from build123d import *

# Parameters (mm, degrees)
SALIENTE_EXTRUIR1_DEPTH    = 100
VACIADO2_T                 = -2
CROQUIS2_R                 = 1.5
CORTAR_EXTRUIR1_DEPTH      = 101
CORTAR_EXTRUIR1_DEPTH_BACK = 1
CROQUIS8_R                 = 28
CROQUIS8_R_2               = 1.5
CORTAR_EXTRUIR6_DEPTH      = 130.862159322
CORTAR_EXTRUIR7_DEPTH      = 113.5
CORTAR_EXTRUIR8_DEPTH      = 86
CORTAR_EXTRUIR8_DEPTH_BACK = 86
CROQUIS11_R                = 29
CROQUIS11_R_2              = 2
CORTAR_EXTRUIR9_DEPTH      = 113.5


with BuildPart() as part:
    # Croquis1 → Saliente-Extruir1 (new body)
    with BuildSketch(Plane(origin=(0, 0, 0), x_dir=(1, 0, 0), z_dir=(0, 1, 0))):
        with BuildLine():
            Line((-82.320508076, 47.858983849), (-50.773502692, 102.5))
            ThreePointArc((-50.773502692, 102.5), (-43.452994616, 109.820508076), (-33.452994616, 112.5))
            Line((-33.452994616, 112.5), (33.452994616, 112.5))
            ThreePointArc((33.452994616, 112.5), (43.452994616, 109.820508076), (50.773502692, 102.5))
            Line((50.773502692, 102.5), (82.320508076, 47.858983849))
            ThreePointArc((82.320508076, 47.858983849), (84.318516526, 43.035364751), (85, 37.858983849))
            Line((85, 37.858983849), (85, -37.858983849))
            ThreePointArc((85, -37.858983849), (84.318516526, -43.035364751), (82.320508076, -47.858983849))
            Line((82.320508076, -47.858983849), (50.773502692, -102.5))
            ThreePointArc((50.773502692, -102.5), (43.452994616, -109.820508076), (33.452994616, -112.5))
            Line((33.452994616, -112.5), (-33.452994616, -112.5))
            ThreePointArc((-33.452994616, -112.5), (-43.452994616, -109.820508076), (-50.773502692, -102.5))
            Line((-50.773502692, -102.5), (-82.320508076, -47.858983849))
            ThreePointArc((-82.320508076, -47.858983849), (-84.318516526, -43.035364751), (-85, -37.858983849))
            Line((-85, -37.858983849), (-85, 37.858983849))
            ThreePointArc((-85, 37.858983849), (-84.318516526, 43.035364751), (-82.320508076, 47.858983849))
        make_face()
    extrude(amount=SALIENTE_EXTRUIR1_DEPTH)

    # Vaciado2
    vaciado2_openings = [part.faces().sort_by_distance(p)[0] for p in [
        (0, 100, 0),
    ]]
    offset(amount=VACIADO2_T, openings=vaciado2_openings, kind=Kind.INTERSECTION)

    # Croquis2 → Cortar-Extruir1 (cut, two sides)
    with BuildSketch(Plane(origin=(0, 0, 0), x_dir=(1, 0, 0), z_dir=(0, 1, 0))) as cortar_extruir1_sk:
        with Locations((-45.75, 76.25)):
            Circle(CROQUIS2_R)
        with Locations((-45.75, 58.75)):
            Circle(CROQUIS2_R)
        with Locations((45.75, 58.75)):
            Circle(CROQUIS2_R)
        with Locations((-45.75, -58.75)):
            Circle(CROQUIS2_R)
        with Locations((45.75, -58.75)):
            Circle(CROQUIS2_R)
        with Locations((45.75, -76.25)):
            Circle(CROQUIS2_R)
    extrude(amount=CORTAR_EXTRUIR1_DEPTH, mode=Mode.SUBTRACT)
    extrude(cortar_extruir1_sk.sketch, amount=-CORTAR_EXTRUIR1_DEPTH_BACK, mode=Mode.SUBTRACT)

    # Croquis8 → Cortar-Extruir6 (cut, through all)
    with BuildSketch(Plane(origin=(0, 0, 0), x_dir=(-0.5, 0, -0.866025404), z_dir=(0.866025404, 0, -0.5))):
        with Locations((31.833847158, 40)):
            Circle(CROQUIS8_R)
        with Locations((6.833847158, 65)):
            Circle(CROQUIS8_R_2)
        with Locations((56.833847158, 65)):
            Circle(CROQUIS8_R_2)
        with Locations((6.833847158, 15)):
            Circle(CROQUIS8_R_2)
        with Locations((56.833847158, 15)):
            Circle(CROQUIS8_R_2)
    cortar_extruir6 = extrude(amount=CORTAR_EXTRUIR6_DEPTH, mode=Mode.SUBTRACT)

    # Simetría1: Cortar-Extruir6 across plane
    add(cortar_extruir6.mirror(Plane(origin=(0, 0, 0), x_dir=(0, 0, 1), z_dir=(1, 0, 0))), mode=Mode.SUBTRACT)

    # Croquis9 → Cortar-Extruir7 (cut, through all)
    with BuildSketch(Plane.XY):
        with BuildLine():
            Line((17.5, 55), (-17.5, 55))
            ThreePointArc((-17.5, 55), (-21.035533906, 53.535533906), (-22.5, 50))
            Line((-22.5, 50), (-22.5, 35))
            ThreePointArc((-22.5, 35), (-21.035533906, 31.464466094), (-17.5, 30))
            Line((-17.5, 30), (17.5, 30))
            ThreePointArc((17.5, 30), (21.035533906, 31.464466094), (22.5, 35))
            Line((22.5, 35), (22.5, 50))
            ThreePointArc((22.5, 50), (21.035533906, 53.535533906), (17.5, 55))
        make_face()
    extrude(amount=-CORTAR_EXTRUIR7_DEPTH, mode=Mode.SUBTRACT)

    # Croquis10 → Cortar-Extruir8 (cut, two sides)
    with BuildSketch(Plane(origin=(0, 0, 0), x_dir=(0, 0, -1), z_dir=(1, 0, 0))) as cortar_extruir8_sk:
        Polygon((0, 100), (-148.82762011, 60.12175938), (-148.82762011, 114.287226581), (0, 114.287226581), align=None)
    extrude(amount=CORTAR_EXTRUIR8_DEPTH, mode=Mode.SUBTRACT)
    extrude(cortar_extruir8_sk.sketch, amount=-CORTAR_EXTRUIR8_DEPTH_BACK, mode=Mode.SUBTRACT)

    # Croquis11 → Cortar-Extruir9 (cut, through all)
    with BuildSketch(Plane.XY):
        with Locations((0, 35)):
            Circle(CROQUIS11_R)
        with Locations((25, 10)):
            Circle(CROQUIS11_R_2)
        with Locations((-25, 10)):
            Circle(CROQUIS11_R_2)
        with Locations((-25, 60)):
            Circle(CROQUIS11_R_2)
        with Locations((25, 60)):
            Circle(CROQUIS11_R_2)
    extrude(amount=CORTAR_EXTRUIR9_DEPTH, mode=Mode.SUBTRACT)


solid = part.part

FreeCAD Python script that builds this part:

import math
import FreeCAD as App
import Part
import Sketcher
Q = App.Units.Quantity


def faces_at(feature, points):
    """Names of the faces that lie closest to the given points."""
    faces = feature.Shape.Faces
    near = lambda p: min(range(len(faces)), key=lambda i: faces[i].distToShape(Part.Vertex(*p))[0])
    return sorted({f"Face{near(p) + 1}" for p in points})

doc = App.newDocument("Part")
body = doc.addObject("PartDesign::Body", "Body")

sketch1 = doc.addObject("Sketcher::SketchObject", "Sketch")
body.addObject(sketch1)
sketch1.AttachmentSupport = (doc.XZ_Plane, [""])
sketch1.MapMode = "FlatFace"
sketch1.addGeometry(Part.LineSegment(App.Vector(-50.773503, -102.5, 0), App.Vector(-82.320508, -47.858984, 0)), False)
sketch1.addGeometry(Part.ArcOfCircle(Part.Circle(App.Vector(-65, -37.858984, 0), App.Vector(0, 0, 1), 20), math.radians(180), math.radians(210)), False)
sketch1.addGeometry(Part.LineSegment(App.Vector(-85, -37.858984, 0), App.Vector(-85, 37.858984, 0)), False)
sketch1.addGeometry(Part.ArcOfCircle(Part.Circle(App.Vector(-65, 37.858984, 0), App.Vector(0, 0, 1), 20), math.radians(150), math.radians(180)), False)
sketch1.addGeometry(Part.LineSegment(App.Vector(-82.320508, 47.858984, 0), App.Vector(-50.773503, 102.5, 0)), False)
sketch1.addGeometry(Part.ArcOfCircle(Part.Circle(App.Vector(-33.452995, 92.5, 0), App.Vector(0, 0, 1), 20), math.radians(90), math.radians(150)), False)
sketch1.addGeometry(Part.LineSegment(App.Vector(-33.452995, 112.5, 0), App.Vector(33.452995, 112.5, 0)), False)
sketch1.addGeometry(Part.ArcOfCircle(Part.Circle(App.Vector(33.452995, 92.5, 0), App.Vector(0, 0, 1), 20), math.radians(30), math.radians(90)), False)
sketch1.addGeometry(Part.LineSegment(App.Vector(50.773503, 102.5, 0), App.Vector(82.320508, 47.858984, 0)), False)
sketch1.addGeometry(Part.ArcOfCircle(Part.Circle(App.Vector(65, 37.858984, 0), App.Vector(0, 0, 1), 20), math.radians(0), math.radians(30)), False)
sketch1.addGeometry(Part.LineSegment(App.Vector(85, 37.858984, 0), App.Vector(85, -37.858984, 0)), False)
sketch1.addGeometry(Part.ArcOfCircle(Part.Circle(App.Vector(65, -37.858984, 0), App.Vector(0, 0, 1), 20), math.radians(-30), math.radians(0)), False)
sketch1.addGeometry(Part.LineSegment(App.Vector(82.320508, -47.858984, 0), App.Vector(50.773503, -102.5, 0)), False)
sketch1.addGeometry(Part.ArcOfCircle(Part.Circle(App.Vector(33.452995, -92.5, 0), App.Vector(0, 0, 1), 20), math.radians(-90), math.radians(-30)), False)
sketch1.addGeometry(Part.LineSegment(App.Vector(33.452995, -112.5, 0), App.Vector(-33.452995, -112.5, 0)), False)
sketch1.addGeometry(Part.ArcOfCircle(Part.Circle(App.Vector(-33.452995, -92.5, 0), App.Vector(0, 0, 1), 20), math.radians(-150), math.radians(-90)), False)
sketch1.addConstraint(Sketcher.Constraint("Tangent", 0, 2, 1, 2))
sketch1.addConstraint(Sketcher.Constraint("Tangent", 1, 1, 2, 1))
sketch1.addConstraint(Sketcher.Constraint("Tangent", 2, 2, 3, 2))
sketch1.addConstraint(Sketcher.Constraint("Tangent", 3, 1, 4, 1))
sketch1.addConstraint(Sketcher.Constraint("Tangent", 4, 2, 5, 2))
sketch1.addConstraint(Sketcher.Constraint("Tangent", 5, 1, 6, 1))
sketch1.addConstraint(Sketcher.Constraint("Tangent", 6, 2, 7, 2))
sketch1.addConstraint(Sketcher.Constraint("Tangent", 7, 1, 8, 1))
sketch1.addConstraint(Sketcher.Constraint("Tangent", 8, 2, 9, 2))
sketch1.addConstraint(Sketcher.Constraint("Tangent", 9, 1, 10, 1))
sketch1.addConstraint(Sketcher.Constraint("Tangent", 10, 2, 11, 2))
sketch1.addConstraint(Sketcher.Constraint("Tangent", 11, 1, 12, 1))
sketch1.addConstraint(Sketcher.Constraint("Tangent", 12, 2, 13, 2))
sketch1.addConstraint(Sketcher.Constraint("Tangent", 13, 1, 14, 1))
sketch1.addConstraint(Sketcher.Constraint("Tangent", 14, 2, 15, 2))
sketch1.addConstraint(Sketcher.Constraint("Tangent", 15, 1, 0, 1))
sketch1.addConstraint(Sketcher.Constraint("Vertical", 2))
sketch1.addConstraint(Sketcher.Constraint("Horizontal", 6))
sketch1.addConstraint(Sketcher.Constraint("Vertical", 10))
sketch1.addConstraint(Sketcher.Constraint("Horizontal", 14))
sketch1.addConstraint(Sketcher.Constraint("Equal", 1, 3))
sketch1.addConstraint(Sketcher.Constraint("Equal", 3, 5))
sketch1.addConstraint(Sketcher.Constraint("Equal", 5, 7))
sketch1.addConstraint(Sketcher.Constraint("Equal", 7, 9))
sketch1.addConstraint(Sketcher.Constraint("Equal", 9, 11))
sketch1.addConstraint(Sketcher.Constraint("Equal", 11, 13))
sketch1.addConstraint(Sketcher.Constraint("Equal", 13, 15))
sketch1.addConstraint(Sketcher.Constraint("Symmetric", 1, 3, 9, 3, -1, 1))
sketch1.addConstraint(Sketcher.Constraint("Symmetric", 5, 3, 13, 3, -1, 1))
sketch1.addConstraint(Sketcher.Constraint("Symmetric", 4, 2, 7, 1, -2))
sketch1.addConstraint(Sketcher.Constraint("Symmetric", 0, 2, 11, 1, -2))
sketch1.addConstraint(Sketcher.Constraint("Radius", 1, 20.0))
sketch1.addConstraint(Sketcher.Constraint("Angle", 0, Q("120 deg")))
sketch1.addConstraint(Sketcher.Constraint("DistanceX", 1, 3, -1, 1, 65.0))
sketch1.addConstraint(Sketcher.Constraint("DistanceY", 13, 3, 7, 3, 185.0))
sketch1.addConstraint(Sketcher.Constraint("DistanceX", 6, 1, 6, 2, 66.905989))
pad1 = doc.addObject("PartDesign::Pad", "Pad")
body.addObject(pad1)
pad1.Profile = sketch1
pad1.Length = 100
pad1.Reversed = True
doc.recompute()

thickness = doc.addObject("PartDesign::Thickness", "Thickness")
body.addObject(thickness)
thickness.Base = (pad1, faces_at(pad1, [(0, 100, 0)]))
thickness.Value = 2
thickness.Reversed = True
thickness.Join = "Intersection"

sketch2 = doc.addObject("Sketcher::SketchObject", "Sketch001")
body.addObject(sketch2)
sketch2.AttachmentSupport = (doc.XZ_Plane, [""])
sketch2.MapMode = "FlatFace"
sketch2.addGeometry(Part.Circle(App.Vector(-45.75, -76.25, 0), App.Vector(0, 0, 1), 1.5), False)
sketch2.addGeometry(Part.Circle(App.Vector(-45.75, -58.75, 0), App.Vector(0, 0, 1), 1.5), False)
sketch2.addGeometry(Part.Circle(App.Vector(45.75, -58.75, 0), App.Vector(0, 0, 1), 1.5), False)
sketch2.addGeometry(Part.Circle(App.Vector(-45.75, 58.75, 0), App.Vector(0, 0, 1), 1.5), False)
sketch2.addGeometry(Part.Circle(App.Vector(45.75, 58.75, 0), App.Vector(0, 0, 1), 1.5), False)
sketch2.addGeometry(Part.Circle(App.Vector(45.75, 76.25, 0), App.Vector(0, 0, 1), 1.5), False)
sketch2.addConstraint(Sketcher.Constraint("Equal", 0, 1))
sketch2.addConstraint(Sketcher.Constraint("Equal", 1, 2))
sketch2.addConstraint(Sketcher.Constraint("Equal", 2, 3))
sketch2.addConstraint(Sketcher.Constraint("Equal", 3, 4))
sketch2.addConstraint(Sketcher.Constraint("Equal", 4, 5))
sketch2.addConstraint(Sketcher.Constraint("Symmetric", 2, 3, 3, 3, -1, 1))
sketch2.addConstraint(Sketcher.Constraint("Symmetric", 1, 3, 4, 3, -1, 1))
sketch2.addConstraint(Sketcher.Constraint("Symmetric", 0, 3, 5, 3, -1, 1))
sketch2.addConstraint(Sketcher.Constraint("Symmetric", 1, 3, 2, 3, -2))
sketch2.addConstraint(Sketcher.Constraint("Vertical", 0, 3, 1, 3))
sketch2.addConstraint(Sketcher.Constraint("Diameter", 0, 3.0))
sketch2.addConstraint(Sketcher.Constraint("DistanceY", 0, 3, 3, 3, 135.0))
sketch2.addConstraint(Sketcher.Constraint("DistanceY", 0, 3, 1, 3, 17.5))
sketch2.addConstraint(Sketcher.Constraint("DistanceX", 1, 3, 2, 3, 91.5))
pocket1 = doc.addObject("PartDesign::Pocket", "Pocket")
body.addObject(pocket1)
pocket1.Profile = sketch2
pocket1.Type = "ThroughAll"
pocket1.Midplane = True

sketch3 = doc.addObject("Sketcher::SketchObject", "Sketch002")
body.addObject(sketch3)
sketch3.Placement = App.Placement(App.Vector(0, 0, 0), App.Rotation(App.Vector(-0.5, 0, -0.866025404), App.Vector(0, 1, 0), App.Vector(0.866025404, 0, -0.5), "ZXY"))
sketch3.addGeometry(Part.Circle(App.Vector(31.833847, 40, 0), App.Vector(0, 0, 1), 28), False)
sketch3.addGeometry(Part.Circle(App.Vector(6.833847, 65, 0), App.Vector(0, 0, 1), 1.5), False)
sketch3.addGeometry(Part.Circle(App.Vector(56.833847, 65, 0), App.Vector(0, 0, 1), 1.5), False)
sketch3.addGeometry(Part.Circle(App.Vector(6.833847, 15, 0), App.Vector(0, 0, 1), 1.5), False)
sketch3.addGeometry(Part.Circle(App.Vector(56.833847, 15, 0), App.Vector(0, 0, 1), 1.5), False)
sketch3.addConstraint(Sketcher.Constraint("Equal", 1, 2))
sketch3.addConstraint(Sketcher.Constraint("Equal", 2, 3))
sketch3.addConstraint(Sketcher.Constraint("Equal", 3, 4))
sketch3.addConstraint(Sketcher.Constraint("Horizontal", 1, 3, 2, 3))
sketch3.addConstraint(Sketcher.Constraint("Horizontal", 3, 3, 4, 3))
sketch3.addConstraint(Sketcher.Constraint("Vertical", 1, 3, 3, 3))
sketch3.addConstraint(Sketcher.Constraint("Vertical", 2, 3, 4, 3))
sketch3.addConstraint(Sketcher.Constraint("Diameter", 0, 56.0))
sketch3.addConstraint(Sketcher.Constraint("Diameter", 1, 3.0))
sketch3.addConstraint(Sketcher.Constraint("DistanceY", -1, 1, 0, 3, 40.0))
sketch3.addConstraint(Sketcher.Constraint("DistanceY", -1, 1, 1, 3, 65.0))
sketch3.addConstraint(Sketcher.Constraint("DistanceY", -1, 1, 3, 3, 15.0))
sketch3.addConstraint(Sketcher.Constraint("DistanceX", 1, 3, 0, 3, 25.0))
sketch3.addConstraint(Sketcher.Constraint("DistanceX", 0, 3, 2, 3, 25.0))
sketch3.addConstraint(Sketcher.Constraint("DistanceX", -1, 1, 0, 3, 31.833847))
pocket2 = doc.addObject("PartDesign::Pocket", "Pocket001")
body.addObject(pocket2)
pocket2.Profile = sketch3
pocket2.Type = "ThroughAll"
pocket2.Reversed = True
doc.recompute()

mirrored = doc.addObject("PartDesign::Mirrored", "Mirrored")
body.addObject(mirrored)
mirrored.Originals = [pocket2]
mirrored.MirrorPlane = (doc.YZ_Plane, [""])
body.Tip = mirrored

sketch4 = doc.addObject("Sketcher::SketchObject", "Sketch003")
body.addObject(sketch4)
sketch4.AttachmentSupport = (doc.XY_Plane, [""])
sketch4.MapMode = "FlatFace"
sketch4.addGeometry(Part.LineSegment(App.Vector(17.5, 55, 0), App.Vector(-17.5, 55, 0)), False)
sketch4.addGeometry(Part.ArcOfCircle(Part.Circle(App.Vector(-17.5, 50, 0), App.Vector(0, 0, 1), 5), math.radians(90), math.radians(180)), False)
sketch4.addGeometry(Part.LineSegment(App.Vector(-22.5, 50, 0), App.Vector(-22.5, 35, 0)), False)
sketch4.addGeometry(Part.ArcOfCircle(Part.Circle(App.Vector(-17.5, 35, 0), App.Vector(0, 0, 1), 5), math.radians(180), math.radians(270)), False)
sketch4.addGeometry(Part.LineSegment(App.Vector(-17.5, 30, 0), App.Vector(17.5, 30, 0)), False)
sketch4.addGeometry(Part.ArcOfCircle(Part.Circle(App.Vector(17.5, 35, 0), App.Vector(0, 0, 1), 5), math.radians(-90), math.radians(0)), False)
sketch4.addGeometry(Part.LineSegment(App.Vector(22.5, 35, 0), App.Vector(22.5, 50, 0)), False)
sketch4.addGeometry(Part.ArcOfCircle(Part.Circle(App.Vector(17.5, 50, 0), App.Vector(0, 0, 1), 5), math.radians(0), math.radians(90)), False)
sketch4.addConstraint(Sketcher.Constraint("Tangent", 0, 2, 1, 1))
sketch4.addConstraint(Sketcher.Constraint("Tangent", 1, 2, 2, 1))
sketch4.addConstraint(Sketcher.Constraint("Tangent", 2, 2, 3, 1))
sketch4.addConstraint(Sketcher.Constraint("Tangent", 3, 2, 4, 1))
sketch4.addConstraint(Sketcher.Constraint("Tangent", 4, 2, 5, 1))
sketch4.addConstraint(Sketcher.Constraint("Tangent", 5, 2, 6, 1))
sketch4.addConstraint(Sketcher.Constraint("Tangent", 6, 2, 7, 1))
sketch4.addConstraint(Sketcher.Constraint("Tangent", 7, 2, 0, 1))
sketch4.addConstraint(Sketcher.Constraint("Horizontal", 0))
sketch4.addConstraint(Sketcher.Constraint("Vertical", 2))
sketch4.addConstraint(Sketcher.Constraint("Horizontal", 4))
sketch4.addConstraint(Sketcher.Constraint("Vertical", 6))
sketch4.addConstraint(Sketcher.Constraint("Equal", 1, 3))
sketch4.addConstraint(Sketcher.Constraint("Equal", 3, 5))
sketch4.addConstraint(Sketcher.Constraint("Equal", 5, 7))
sketch4.addConstraint(Sketcher.Constraint("Radius", 1, 5.0))
sketch4.addConstraint(Sketcher.Constraint("DistanceX", 0, 2, 0, 1, 35.0))
sketch4.addConstraint(Sketcher.Constraint("DistanceY", 2, 2, 2, 1, 15.0))
sketch4.addConstraint(Sketcher.Constraint("DistanceY", -1, 1, 1, 3, 50.0))
sketch4.addConstraint(Sketcher.Constraint("DistanceX", 1, 3, -1, 1, 17.5))
pocket3 = doc.addObject("PartDesign::Pocket", "Pocket002")
body.addObject(pocket3)
pocket3.Profile = sketch4
pocket3.Type = "ThroughAll"

sketch5 = doc.addObject("Sketcher::SketchObject", "Sketch004")
body.addObject(sketch5)
sketch5.AttachmentSupport = (doc.YZ_Plane, [""])
sketch5.MapMode = "FlatFace"
sketch5.addGeometry(Part.LineSegment(App.Vector(60.121759, 148.82762, 0), App.Vector(100, 0, 0)), False)
sketch5.addGeometry(Part.LineSegment(App.Vector(100, 0, 0), App.Vector(114.287227, 0, 0)), False)
sketch5.addGeometry(Part.LineSegment(App.Vector(114.287227, 0, 0), App.Vector(114.287227, 148.82762, 0)), False)
sketch5.addGeometry(Part.LineSegment(App.Vector(114.287227, 148.82762, 0), App.Vector(60.121759, 148.82762, 0)), False)
sketch5.addConstraint(Sketcher.Constraint("Coincident", 0, 2, 1, 1))
sketch5.addConstraint(Sketcher.Constraint("Coincident", 1, 2, 2, 1))
sketch5.addConstraint(Sketcher.Constraint("Coincident", 2, 2, 3, 1))
sketch5.addConstraint(Sketcher.Constraint("Coincident", 3, 2, 0, 1))
sketch5.addConstraint(Sketcher.Constraint("Horizontal", 1))
sketch5.addConstraint(Sketcher.Constraint("Vertical", 2))
sketch5.addConstraint(Sketcher.Constraint("Horizontal", 3))
sketch5.addConstraint(Sketcher.Constraint("PointOnObject", 0, 2, -1))
sketch5.addConstraint(Sketcher.Constraint("Angle", 0, Q("-75 deg")))
sketch5.addConstraint(Sketcher.Constraint("DistanceX", -1, 1, 0, 2, 100.0))
sketch5.addConstraint(Sketcher.Constraint("DistanceY", 2, 1, 2, 2, 148.82762))
sketch5.addConstraint(Sketcher.Constraint("DistanceX", 1, 1, 1, 2, 14.287227))
pocket4 = doc.addObject("PartDesign::Pocket", "Pocket003")
body.addObject(pocket4)
pocket4.Profile = sketch5
pocket4.Type = "ThroughAll"
pocket4.Midplane = True

sketch6 = doc.addObject("Sketcher::SketchObject", "Sketch005")
body.addObject(sketch6)
sketch6.AttachmentSupport = (doc.XY_Plane, [""])
sketch6.MapMode = "FlatFace"
sketch6.addGeometry(Part.Circle(App.Vector(0, 35, 0), App.Vector(0, 0, 1), 29), False)
sketch6.addGeometry(Part.Circle(App.Vector(25, 10, 0), App.Vector(0, 0, 1), 2), False)
sketch6.addGeometry(Part.Circle(App.Vector(-25, 10, 0), App.Vector(0, 0, 1), 2), False)
sketch6.addGeometry(Part.Circle(App.Vector(-25, 60, 0), App.Vector(0, 0, 1), 2), False)
sketch6.addGeometry(Part.Circle(App.Vector(25, 60, 0), App.Vector(0, 0, 1), 2), False)
sketch6.addConstraint(Sketcher.Constraint("Equal", 1, 2))
sketch6.addConstraint(Sketcher.Constraint("Equal", 2, 3))
sketch6.addConstraint(Sketcher.Constraint("Equal", 3, 4))
sketch6.addConstraint(Sketcher.Constraint("Symmetric", 1, 3, 2, 3, -2))
sketch6.addConstraint(Sketcher.Constraint("Symmetric", 3, 3, 4, 3, -2))
sketch6.addConstraint(Sketcher.Constraint("PointOnObject", 0, 3, -2))
sketch6.addConstraint(Sketcher.Constraint("Vertical", 2, 3, 3, 3))
sketch6.addConstraint(Sketcher.Constraint("Diameter", 0, 58.0))
sketch6.addConstraint(Sketcher.Constraint("Diameter", 1, 4.0))
sketch6.addConstraint(Sketcher.Constraint("DistanceY", -1, 1, 0, 3, 35.0))
sketch6.addConstraint(Sketcher.Constraint("DistanceX", -1, 1, 1, 3, 25.0))
sketch6.addConstraint(Sketcher.Constraint("DistanceY", -1, 1, 1, 3, 10.0))
sketch6.addConstraint(Sketcher.Constraint("DistanceY", -1, 1, 3, 3, 60.0))
pocket5 = doc.addObject("PartDesign::Pocket", "Pocket004")
body.addObject(pocket5)
pocket5.Profile = sketch6
pocket5.Type = "ThroughAll"
pocket5.Reversed = True

doc.recompute()
